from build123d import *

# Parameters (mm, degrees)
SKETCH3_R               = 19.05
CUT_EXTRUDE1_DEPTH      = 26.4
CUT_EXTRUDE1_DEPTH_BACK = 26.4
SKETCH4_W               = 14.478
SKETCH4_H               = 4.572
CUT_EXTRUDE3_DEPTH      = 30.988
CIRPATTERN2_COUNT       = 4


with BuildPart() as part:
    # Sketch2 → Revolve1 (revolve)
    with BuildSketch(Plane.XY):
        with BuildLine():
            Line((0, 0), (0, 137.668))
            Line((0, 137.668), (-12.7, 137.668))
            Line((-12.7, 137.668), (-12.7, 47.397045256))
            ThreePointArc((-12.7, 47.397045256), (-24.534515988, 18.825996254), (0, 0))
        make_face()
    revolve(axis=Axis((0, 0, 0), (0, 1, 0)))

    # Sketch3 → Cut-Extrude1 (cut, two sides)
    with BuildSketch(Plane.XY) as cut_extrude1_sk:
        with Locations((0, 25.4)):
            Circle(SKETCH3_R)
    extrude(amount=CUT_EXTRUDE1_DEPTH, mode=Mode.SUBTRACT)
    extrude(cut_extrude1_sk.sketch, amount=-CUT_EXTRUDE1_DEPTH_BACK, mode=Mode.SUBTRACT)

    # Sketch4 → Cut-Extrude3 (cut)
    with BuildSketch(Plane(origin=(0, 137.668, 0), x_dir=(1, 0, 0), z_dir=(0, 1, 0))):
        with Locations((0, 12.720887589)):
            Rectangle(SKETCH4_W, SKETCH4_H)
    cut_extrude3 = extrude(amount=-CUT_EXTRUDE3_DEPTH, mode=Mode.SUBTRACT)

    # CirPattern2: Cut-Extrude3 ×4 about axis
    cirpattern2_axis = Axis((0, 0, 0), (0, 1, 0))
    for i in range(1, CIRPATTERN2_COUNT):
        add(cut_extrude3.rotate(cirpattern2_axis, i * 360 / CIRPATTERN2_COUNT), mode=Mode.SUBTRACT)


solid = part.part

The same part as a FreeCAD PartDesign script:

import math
import FreeCAD as App
import Part
import Sketcher
Q = App.Units.Quantity


def add_polygon(sketch, points):
    """Adds a closed chain of lines whose ends are joined by coincident constraints."""
    first, n = sketch.GeometryCount, len(points)
    for a, b in zip(points, points[1:] + points[:1]):
        sketch.addGeometry(Part.LineSegment(App.Vector(*a, 0), App.Vector(*b, 0)), False)
    for i in range(n):
        sketch.addConstraint(Sketcher.Constraint("Coincident", first + i, 2, first + (i + 1) % n, 1))

doc = App.newDocument("Part")
params = doc.addObject("Spreadsheet::Sheet", "Params")
for row, (alias, value) in enumerate([
    ("sketch1_radius", "1 in"),
    ("sketch1_width", "0.5 in"),
    ("sketch1_height", "5.42 in"),
    ("revolution_angle", "360 deg"),
    ("sketch2_diameter", "1.5 in"),
    ("sketch3_width", "0.57 in"),
    ("sketch3_height", "0.18 in"),
    ("pocket2_length", "1.22 in"),
], start=1):
    params.set(f"A{row}", alias)
    params.set(f"B{row}", "=" + value)
    params.setAlias(f"B{row}", alias)

body = doc.addObject("PartDesign::Body", "Body")

sketch1 = body.newObject("Sketcher::SketchObject", "Sketch")
sketch1.AttachmentSupport = (doc.getObject("XY_Plane"), [""])
sketch1.MapMode = "FlatFace"
sketch1.addGeometry([
    Part.LineSegment(App.Vector(0, 0, 0), App.Vector(0, 138, 0)),
    Part.LineSegment(App.Vector(0, 138, 0), App.Vector(-13, 138, 0)),
    Part.LineSegment(App.Vector(-13, 138, 0), App.Vector(-13, 47, 0)),
    Part.ArcOfCircle(Part.Circle(App.Vector(0, 25, 0), App.Vector(0, 0, 1), 25), math.radians(120), math.radians(270)),
], False)
sketch1.addConstraint([
    Sketcher.Constraint("Coincident", 0, 2, 1, 1),
    Sketcher.Constraint("Coincident", 1, 2, 2, 1),
    Sketcher.Constraint("Coincident", 2, 2, 3, 1),
    Sketcher.Constraint("Coincident", 3, 2, 0, 1),
    Sketcher.Constraint("Vertical", 0),
    Sketcher.Constraint("Horizontal", 1),
    Sketcher.Constraint("Vertical", 2),
    Sketcher.Constraint("Coincident", 3, 2, -1, 1),
    Sketcher.Constraint("PointOnObject", 3, 3, -2),
    Sketcher.Constraint("Radius", 3, Q("1 in")),
    Sketcher.Constraint("DistanceX", 1, 2, 1, 1, Q("0.5 in")),
    Sketcher.Constraint("DistanceY", 0, 1, 0, 2, Q("5.42 in")),
])
sketch1.setExpression("Constraints[9]", "Params.sketch1_radius")
sketch1.setExpression("Constraints[10]", "Params.sketch1_width")
sketch1.setExpression("Constraints[11]", "Params.sketch1_height")
revolution = body.newObject("PartDesign::Revolution", "Revolution")
revolution.Profile = sketch1
revolution.ReferenceAxis = (sketch1, ["V_Axis"])
revolution.setExpression("Angle", "Params.revolution_angle")

sketch2 = body.newObject("Sketcher::SketchObject", "Sketch001")
sketch2.AttachmentSupport = (doc.getObject("XY_Plane"), [""])
sketch2.MapMode = "FlatFace"
sketch2.addGeometry(Part.Circle(App.Vector(0, 25, 0), App.Vector(0, 0, 1), 19), False)
sketch2.addConstraint([
    Sketcher.Constraint("PointOnObject", 0, 3, -2),
    Sketcher.Constraint("Diameter", 0, Q("1.5 in")),
    Sketcher.Constraint("DistanceY", -1, 1, 0, 3, Q("1 in")),
])
sketch2.setExpression("Constraints[1]", "Params.sketch2_diameter")
pocket1 = body.newObject("PartDesign::Pocket", "Pocket")
pocket1.Profile = sketch2
pocket1.Type = "ThroughAll"
pocket1.Midplane = True

sketch3 = body.newObject("Sketcher::SketchObject", "Sketch002")
sketch3.AttachmentSupport = (doc.getObject("XZ_Plane"), [""])
sketch3.MapMode = "FlatFace"
sketch3.AttachmentOffset = App.Placement(App.Vector(0, 0, -5.42 * 25.4), App.Rotation())
add_polygon(sketch3, [(-7.2, -15), (-7.2, -10.4), (7.2, -10.4), (7.2, -15)])
sketch3.addConstraint([
    Sketcher.Constraint("Vertical", 0),
    Sketcher.Constraint("Horizontal", 1),
    Sketcher.Constraint("Vertical", 2),
    Sketcher.Constraint("Horizontal", 3),
    Sketcher.Constraint("DistanceX", 1, 1, 1, 2, Q("0.57 in")),
    Sketcher.Constraint("DistanceY", 0, 1, 0, 2, Q("0.18 in")),
    Sketcher.Constraint("DistanceX", 0, 2, -1, 1, Q("0.285 in")),
    Sketcher.Constraint("DistanceY", 0, 2, -1, 1, Q("10.434888 mm")),
])
sketch3.setExpression("Constraints[8]", "Params.sketch3_width")
sketch3.setExpression("Constraints[9]", "Params.sketch3_height")
pocket2 = body.newObject("PartDesign::Pocket", "Pocket001")
pocket2.Profile = sketch3
pocket2.setExpression("Length", "Params.pocket2_length")
pocket2.Reversed = True
doc.recompute()

polarpattern = body.newObject("PartDesign::PolarPattern", "PolarPattern")
polarpattern.Originals = [pocket2]
polarpattern.Axis = (doc.getObject("Y_Axis"), [""])
polarpattern.Angle = 360
polarpattern.Occurrences = 4
body.Tip = polarpattern

doc.recompute()
